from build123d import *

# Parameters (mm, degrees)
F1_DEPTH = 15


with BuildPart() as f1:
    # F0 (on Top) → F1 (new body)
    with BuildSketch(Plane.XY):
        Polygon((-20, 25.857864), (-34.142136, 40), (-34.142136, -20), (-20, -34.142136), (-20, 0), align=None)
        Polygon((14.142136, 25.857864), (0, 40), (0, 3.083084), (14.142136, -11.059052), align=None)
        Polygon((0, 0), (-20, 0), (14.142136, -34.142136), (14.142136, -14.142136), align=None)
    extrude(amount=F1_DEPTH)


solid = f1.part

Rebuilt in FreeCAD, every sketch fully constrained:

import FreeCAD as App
import Part
import Sketcher


def add_polygon(sketch, points):
    """Adds a closed chain of lines whose ends are joined by coincident constraints."""
    first, n = sketch.GeometryCount, len(points)
    for a, b in zip(points, points[1:] + points[:1]):
        sketch.addGeometry(Part.LineSegment(App.Vector(*a, 0), App.Vector(*b, 0)), False)
    for i in range(n):
        sketch.addConstraint(Sketcher.Constraint("Coincident", first + i, 2, first + (i + 1) % n, 1))

doc = App.newDocument("Part")
body = doc.addObject("PartDesign::Body", "Body")
body.AllowCompound = True

sketch1 = doc.addObject("Sketcher::SketchObject", "Sketch")
body.addObject(sketch1)
sketch1.AttachmentSupport = (doc.XY_Plane, [""])
sketch1.MapMode = "FlatFace"
add_polygon(sketch1, [(-20, 26), (-34, 40), (-34, -20), (-20, -34), (-20, 0)])
add_polygon(sketch1, [(14, 26), (0, 40), (0, 3), (14, -11)])
add_polygon(sketch1, [(0, 0), (-20, 0), (14, -34), (14, -14)])
sketch1.addConstraint([
    Sketcher.Constraint("Vertical", 1),
    Sketcher.Constraint("Vertical", 3),
    Sketcher.Constraint("Vertical", 4),
    Sketcher.Constraint("Vertical", 6),
    Sketcher.Constraint("Vertical", 8),
    Sketcher.Constraint("Horizontal", 9),
    Sketcher.Constraint("Vertical", 11),
    Sketcher.Constraint("Coincident", 12, 2, -1, 1),
    Sketcher.Constraint("Coincident", 9, 2, 3, 2),
    Sketcher.Constraint("PointOnObject", 5, 2, -2),
    Sketcher.Constraint("Parallel", 0, 2),
    Sketcher.Constraint("Parallel", 2, 5),
    Sketcher.Constraint("Parallel", 5, 7),
    Sketcher.Constraint("Parallel", 7, 10),
    Sketcher.Constraint("Parallel", 10, 12),
    Sketcher.Constraint("Horizontal", 0, 2, 5, 2),
    Sketcher.Constraint("Horizontal", 4, 2, 8, 2),
    Sketcher.Constraint("Horizontal", 2, 2, 10, 2),
    Sketcher.Constraint("Vertical", 8, 2, 10, 2),
    Sketcher.Constraint("Equal", 9, 11),
    Sketcher.Constraint("DistanceX", 9, 2, 9, 1, 20.0),
    Sketcher.Constraint("DistanceY", 1, 2, 1, 1, 60.0),
    Sketcher.Constraint("Distance", 0, 20.000001),
    Sketcher.Constraint("DistanceY", 6, 2, 6, 1, 36.916916),
])
pad1 = doc.addObject("PartDesign::Pad", "Pad")
body.addObject(pad1)
pad1.Profile = sketch1
pad1.Length = 15

doc.recompute()
